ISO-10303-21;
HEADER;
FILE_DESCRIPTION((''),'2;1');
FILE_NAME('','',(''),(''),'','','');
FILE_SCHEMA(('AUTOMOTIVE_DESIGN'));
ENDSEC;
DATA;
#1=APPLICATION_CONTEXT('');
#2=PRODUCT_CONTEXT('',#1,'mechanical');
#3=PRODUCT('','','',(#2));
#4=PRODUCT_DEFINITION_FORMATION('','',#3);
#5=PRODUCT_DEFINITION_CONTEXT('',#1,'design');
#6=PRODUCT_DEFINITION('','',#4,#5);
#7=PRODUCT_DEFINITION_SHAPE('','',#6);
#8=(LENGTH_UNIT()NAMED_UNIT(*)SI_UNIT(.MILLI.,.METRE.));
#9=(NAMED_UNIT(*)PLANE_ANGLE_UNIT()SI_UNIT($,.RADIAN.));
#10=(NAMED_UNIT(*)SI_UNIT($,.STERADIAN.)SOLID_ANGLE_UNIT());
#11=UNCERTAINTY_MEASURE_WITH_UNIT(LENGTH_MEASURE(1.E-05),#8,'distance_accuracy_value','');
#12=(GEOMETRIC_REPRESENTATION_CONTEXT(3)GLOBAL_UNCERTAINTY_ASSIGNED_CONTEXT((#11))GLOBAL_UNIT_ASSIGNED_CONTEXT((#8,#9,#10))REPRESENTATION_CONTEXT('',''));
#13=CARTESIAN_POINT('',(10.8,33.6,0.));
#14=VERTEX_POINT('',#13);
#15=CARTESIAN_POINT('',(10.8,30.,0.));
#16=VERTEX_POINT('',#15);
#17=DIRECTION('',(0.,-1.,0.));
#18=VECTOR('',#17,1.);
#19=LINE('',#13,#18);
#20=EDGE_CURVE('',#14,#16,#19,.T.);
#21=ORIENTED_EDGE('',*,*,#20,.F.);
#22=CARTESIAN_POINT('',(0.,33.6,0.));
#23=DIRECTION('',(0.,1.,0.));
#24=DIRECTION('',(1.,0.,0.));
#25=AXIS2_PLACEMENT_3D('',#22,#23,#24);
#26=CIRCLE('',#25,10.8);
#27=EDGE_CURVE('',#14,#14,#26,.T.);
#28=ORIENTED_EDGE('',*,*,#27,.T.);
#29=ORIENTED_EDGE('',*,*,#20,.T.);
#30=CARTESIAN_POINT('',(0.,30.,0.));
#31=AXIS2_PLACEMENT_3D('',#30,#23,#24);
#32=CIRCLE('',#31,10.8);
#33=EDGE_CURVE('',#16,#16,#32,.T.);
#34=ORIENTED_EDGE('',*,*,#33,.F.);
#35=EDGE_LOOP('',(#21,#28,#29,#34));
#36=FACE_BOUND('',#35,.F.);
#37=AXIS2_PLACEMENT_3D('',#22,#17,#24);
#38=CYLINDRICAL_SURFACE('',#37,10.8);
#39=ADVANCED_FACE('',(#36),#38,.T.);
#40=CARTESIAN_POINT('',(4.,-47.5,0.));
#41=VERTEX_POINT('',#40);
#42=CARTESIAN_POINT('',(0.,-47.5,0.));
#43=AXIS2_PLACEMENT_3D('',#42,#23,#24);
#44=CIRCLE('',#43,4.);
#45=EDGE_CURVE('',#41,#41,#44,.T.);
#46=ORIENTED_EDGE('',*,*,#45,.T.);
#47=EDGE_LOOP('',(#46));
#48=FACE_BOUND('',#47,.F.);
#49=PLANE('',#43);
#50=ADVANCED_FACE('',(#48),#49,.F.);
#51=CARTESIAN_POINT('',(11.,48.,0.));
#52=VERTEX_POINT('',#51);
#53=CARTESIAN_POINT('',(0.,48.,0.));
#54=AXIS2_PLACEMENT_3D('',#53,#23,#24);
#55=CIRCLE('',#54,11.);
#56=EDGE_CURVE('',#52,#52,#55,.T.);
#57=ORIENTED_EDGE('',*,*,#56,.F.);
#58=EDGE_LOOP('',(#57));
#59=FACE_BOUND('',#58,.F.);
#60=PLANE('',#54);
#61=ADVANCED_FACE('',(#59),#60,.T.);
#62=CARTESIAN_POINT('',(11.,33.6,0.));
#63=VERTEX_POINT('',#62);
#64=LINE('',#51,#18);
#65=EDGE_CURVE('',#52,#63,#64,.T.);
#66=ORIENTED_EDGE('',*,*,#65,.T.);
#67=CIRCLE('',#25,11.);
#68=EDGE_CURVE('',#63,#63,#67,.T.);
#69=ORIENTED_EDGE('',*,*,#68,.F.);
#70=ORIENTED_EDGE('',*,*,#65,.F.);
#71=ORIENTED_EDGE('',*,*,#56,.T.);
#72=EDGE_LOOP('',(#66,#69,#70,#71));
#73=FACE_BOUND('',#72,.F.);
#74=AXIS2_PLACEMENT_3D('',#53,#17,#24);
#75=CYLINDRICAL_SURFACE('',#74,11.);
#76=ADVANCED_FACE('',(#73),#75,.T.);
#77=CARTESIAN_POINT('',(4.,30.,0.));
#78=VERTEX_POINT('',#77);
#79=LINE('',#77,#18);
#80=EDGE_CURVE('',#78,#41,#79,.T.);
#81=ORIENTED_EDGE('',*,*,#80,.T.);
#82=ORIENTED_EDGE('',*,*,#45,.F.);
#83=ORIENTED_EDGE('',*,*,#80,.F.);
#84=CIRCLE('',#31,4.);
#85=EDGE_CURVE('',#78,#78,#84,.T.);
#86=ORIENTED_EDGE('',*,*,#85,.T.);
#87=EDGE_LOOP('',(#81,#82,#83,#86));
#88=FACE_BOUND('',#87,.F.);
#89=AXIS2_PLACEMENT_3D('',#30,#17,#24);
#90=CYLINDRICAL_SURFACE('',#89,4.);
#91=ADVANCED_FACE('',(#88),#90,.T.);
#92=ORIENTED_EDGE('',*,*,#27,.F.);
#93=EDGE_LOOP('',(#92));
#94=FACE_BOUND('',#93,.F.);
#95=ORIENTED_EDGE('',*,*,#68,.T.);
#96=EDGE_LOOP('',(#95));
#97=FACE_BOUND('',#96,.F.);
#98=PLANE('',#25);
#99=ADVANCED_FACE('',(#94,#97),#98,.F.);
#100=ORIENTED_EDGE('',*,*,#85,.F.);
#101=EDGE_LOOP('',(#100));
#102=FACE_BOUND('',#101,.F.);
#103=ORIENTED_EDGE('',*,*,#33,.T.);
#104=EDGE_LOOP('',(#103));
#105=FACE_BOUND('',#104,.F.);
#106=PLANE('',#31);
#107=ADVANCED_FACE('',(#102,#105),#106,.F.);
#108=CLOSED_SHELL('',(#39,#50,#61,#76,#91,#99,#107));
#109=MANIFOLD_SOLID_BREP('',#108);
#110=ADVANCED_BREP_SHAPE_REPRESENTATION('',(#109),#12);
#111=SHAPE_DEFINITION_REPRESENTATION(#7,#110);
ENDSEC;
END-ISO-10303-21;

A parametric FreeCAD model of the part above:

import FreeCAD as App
import Part
import Sketcher
from FreeCAD import Vector


def add_polygon(sketch, points):
    """Adds a closed chain of lines whose ends are joined by coincident constraints."""
    first, n = sketch.GeometryCount, len(points)
    for a, b in zip(points, points[1:] + points[:1]):
        sketch.addGeometry(Part.LineSegment(App.Vector(*a, 0), App.Vector(*b, 0)), False)
    for i in range(n):
        sketch.addConstraint(Sketcher.Constraint("Coincident", first + i, 2, first + (i + 1) % n, 1))

doc = App.newDocument("Part")
body = doc.addObject("PartDesign::Body", "Body")

# Sketch on XY plane
sketch1 = body.newObject("Sketcher::SketchObject", "Sketch")
sketch1.AttachmentSupport = (doc.getObject("XY_Plane"), [""])
sketch1.MapMode = "FlatFace"
add_polygon(sketch1, [(4, 30), (0, 30), (0, -47.5), (4, -47.5)])  # lines 0-3
sketch1.addConstraint(Sketcher.Constraint("Horizontal", 0))
sketch1.addConstraint(Sketcher.Constraint("Vertical", 1))
sketch1.addConstraint(Sketcher.Constraint("Horizontal", 2))
sketch1.addConstraint(Sketcher.Constraint("Vertical", 3))
sketch1.addConstraint(Sketcher.Constraint("PointOnObject", 0, 2, -2))
sketch1.addConstraint(Sketcher.Constraint("DistanceX", 0, 2, 0, 1, 4.0))
sketch1.addConstraint(Sketcher.Constraint("DistanceY", 1, 2, 1, 1, 77.5))
sketch1.addConstraint(Sketcher.Constraint("DistanceY", -1, 1, 0, 2, 30.0))
revolution = body.newObject("PartDesign::Revolution", "Revolution")
revolution.Profile = sketch1
revolution.ReferenceAxis = (sketch1, ["V_Axis"])
revolution.Angle = 360

# Sketch on XY plane
sketch2 = body.newObject("Sketcher::SketchObject", "Sketch001")
sketch2.AttachmentSupport = (doc.getObject("XY_Plane"), [""])
sketch2.MapMode = "FlatFace"
add_polygon(sketch2, [(11, 48), (0, 48), (0, 30), (10.8, 30), (10.8, 33.6), (11, 33.6)])  # lines 0-5
sketch2.addConstraint(Sketcher.Constraint("Horizontal", 0))
sketch2.addConstraint(Sketcher.Constraint("Vertical", 1))
sketch2.addConstraint(Sketcher.Constraint("Horizontal", 2))
sketch2.addConstraint(Sketcher.Constraint("Vertical", 3))
sketch2.addConstraint(Sketcher.Constraint("Horizontal", 4))
sketch2.addConstraint(Sketcher.Constraint("Vertical", 5))
sketch2.addConstraint(Sketcher.Constraint("PointOnObject", 0, 2, -2))
sketch2.addConstraint(Sketcher.Constraint("DistanceX", 0, 2, 0, 1, 11.0))
sketch2.addConstraint(Sketcher.Constraint("DistanceY", 1, 2, 1, 1, 18.0))
sketch2.addConstraint(Sketcher.Constraint("DistanceX", 2, 1, 2, 2, 10.8))
sketch2.addConstraint(Sketcher.Constraint("DistanceY", 3, 1, 3, 2, 3.6))
sketch2.addConstraint(Sketcher.Constraint("DistanceY", -1, 1, 0, 2, 48.0))
revolution2 = body.newObject("PartDesign::Revolution", "Revolution001")
revolution2.Profile = sketch2
revolution2.ReferenceAxis = (sketch2, ["V_Axis"])
revolution2.Angle = 360

doc.recompute()
